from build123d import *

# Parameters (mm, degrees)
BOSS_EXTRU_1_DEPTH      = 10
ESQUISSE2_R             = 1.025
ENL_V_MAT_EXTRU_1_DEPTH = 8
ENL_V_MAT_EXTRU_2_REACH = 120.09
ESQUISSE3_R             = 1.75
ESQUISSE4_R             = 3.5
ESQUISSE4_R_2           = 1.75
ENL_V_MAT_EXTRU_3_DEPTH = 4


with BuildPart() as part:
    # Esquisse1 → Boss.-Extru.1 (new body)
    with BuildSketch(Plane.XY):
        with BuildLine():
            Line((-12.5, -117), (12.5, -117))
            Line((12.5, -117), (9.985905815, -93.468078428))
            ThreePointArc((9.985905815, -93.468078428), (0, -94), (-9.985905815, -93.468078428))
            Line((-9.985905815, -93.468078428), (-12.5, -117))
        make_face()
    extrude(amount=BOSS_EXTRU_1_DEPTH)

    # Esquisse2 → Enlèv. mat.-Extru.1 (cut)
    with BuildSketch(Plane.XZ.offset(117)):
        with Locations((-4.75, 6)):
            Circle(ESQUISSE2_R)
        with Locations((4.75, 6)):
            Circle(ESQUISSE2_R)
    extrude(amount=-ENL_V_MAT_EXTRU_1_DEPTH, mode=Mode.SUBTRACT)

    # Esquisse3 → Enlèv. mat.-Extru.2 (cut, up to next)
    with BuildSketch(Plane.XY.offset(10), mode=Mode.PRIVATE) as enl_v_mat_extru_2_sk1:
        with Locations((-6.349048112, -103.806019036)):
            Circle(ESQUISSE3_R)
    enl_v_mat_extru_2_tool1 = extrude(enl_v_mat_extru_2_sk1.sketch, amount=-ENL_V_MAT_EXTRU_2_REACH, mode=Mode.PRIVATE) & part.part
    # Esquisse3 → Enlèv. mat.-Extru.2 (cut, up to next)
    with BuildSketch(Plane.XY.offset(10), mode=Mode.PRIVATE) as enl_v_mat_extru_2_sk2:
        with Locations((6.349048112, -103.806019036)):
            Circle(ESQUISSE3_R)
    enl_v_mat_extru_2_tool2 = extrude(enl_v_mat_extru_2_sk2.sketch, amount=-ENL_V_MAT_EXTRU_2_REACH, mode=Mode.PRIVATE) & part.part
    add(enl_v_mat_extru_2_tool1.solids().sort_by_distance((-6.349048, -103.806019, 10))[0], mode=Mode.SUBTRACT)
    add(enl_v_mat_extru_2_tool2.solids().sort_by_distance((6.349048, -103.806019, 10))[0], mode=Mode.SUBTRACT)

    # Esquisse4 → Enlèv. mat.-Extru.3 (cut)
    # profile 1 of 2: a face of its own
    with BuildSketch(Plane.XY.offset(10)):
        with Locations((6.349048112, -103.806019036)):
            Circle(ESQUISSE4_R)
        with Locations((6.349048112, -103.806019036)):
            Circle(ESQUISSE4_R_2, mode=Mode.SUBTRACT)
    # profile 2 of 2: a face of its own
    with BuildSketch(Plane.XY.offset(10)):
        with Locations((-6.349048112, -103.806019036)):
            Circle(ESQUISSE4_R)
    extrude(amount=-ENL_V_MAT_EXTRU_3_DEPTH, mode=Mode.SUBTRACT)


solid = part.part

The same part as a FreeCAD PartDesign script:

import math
import FreeCAD as App
import Part
import Sketcher

doc = App.newDocument("Part")
params = doc.addObject("Spreadsheet::Sheet", "Params")
for row, (alias, value) in enumerate([
    ("sketch1_radius", "94 mm"),
    ("sketch1_width", "25 mm"),
    ("pad1_length", "10 mm"),
    ("sketch2_diameter", "2.05 mm"),
    ("pocket1_length", "8 mm"),
    ("sketch3_diameter", "3.5 mm"),
    ("sketch4_diameter", "3.5 mm"),
    ("sketch5_diameter", "7 mm"),
    ("sketch5_diameter2", "3.5 mm"),
    ("pocket4_length", "4 mm"),
], start=1):
    params.set(f"A{row}", alias)
    params.set(f"B{row}", "=" + value)
    params.setAlias(f"B{row}", alias)

body = doc.addObject("PartDesign::Body", "Body")

sketch1 = body.newObject("Sketcher::SketchObject", "Sketch")
sketch1.AttachmentSupport = (doc.getObject("XY_Plane"), [""])
sketch1.MapMode = "FlatFace"
sketch1.addGeometry([
    Part.LineSegment(App.Vector(-12, -117, 0), App.Vector(12, -117, 0)),
    Part.LineSegment(App.Vector(12, -117, 0), App.Vector(10, -93, 0)),
    Part.ArcOfCircle(Part.Circle(App.Vector(0, 0, 0), App.Vector(0, 0, 1), 94), math.radians(-96.1), math.radians(-83.9)),
    Part.LineSegment(App.Vector(-10, -93, 0), App.Vector(-12, -117, 0)),
], False)
sketch1.addConstraint([
    Sketcher.Constraint("Coincident", 0, 2, 1, 1),
    Sketcher.Constraint("Coincident", 1, 2, 2, 2),
    Sketcher.Constraint("Coincident", 2, 1, 3, 1),
    Sketcher.Constraint("Coincident", 3, 2, 0, 1),
    Sketcher.Constraint("Horizontal", 0),
    Sketcher.Constraint("Coincident", 2, 3, -1, 1),
    Sketcher.Constraint("Horizontal", 1, 2, 2, 1),
    Sketcher.Constraint("Equal", 1, 3),
    Sketcher.Constraint("Radius", 2, 94.0),
    Sketcher.Constraint("DistanceX", 0, 1, 0, 2, 25.0),
    Sketcher.Constraint("DistanceY", 0, 2, -1, 1, 117.0),
    Sketcher.Constraint("DistanceY", 1, 2, -1, 1, 93.468078),
])
sketch1.setExpression("Constraints[8]", "Params.sketch1_radius")
sketch1.setExpression("Constraints[9]", "Params.sketch1_width")
pad1 = body.newObject("PartDesign::Pad", "Pad")
pad1.Profile = sketch1
pad1.setExpression("Length", "Params.pad1_length")

sketch2 = body.newObject("Sketcher::SketchObject", "Sketch001")
sketch2.AttachmentSupport = (doc.getObject("XZ_Plane"), [""])
sketch2.MapMode = "FlatFace"
sketch2.AttachmentOffset = App.Placement(App.Vector(0, 0, 117), App.Rotation())
sketch2.addGeometry([
    Part.Circle(App.Vector(-4.8, 6, 0), App.Vector(0, 0, 1), 1),
    Part.Circle(App.Vector(4.8, 6, 0), App.Vector(0, 0, 1), 1),
], False)
sketch2.addConstraint([
    Sketcher.Constraint("Equal", 0, 1),
    Sketcher.Constraint("Symmetric", 0, 3, 1, 3, -2),
    Sketcher.Constraint("Diameter", 0, 2.05),
    Sketcher.Constraint("DistanceY", -1, 1, 0, 3, 6.0),
    Sketcher.Constraint("DistanceX", 0, 3, 1, 3, 9.5),
])
sketch2.setExpression("Constraints[2]", "Params.sketch2_diameter")
pocket1 = body.newObject("PartDesign::Pocket", "Pocket")
pocket1.Profile = sketch2
pocket1.setExpression("Length", "Params.pocket1_length")

sketch3 = body.newObject("Sketcher::SketchObject", "Sketch002")
sketch3.AttachmentSupport = (doc.getObject("XY_Plane"), [""])
sketch3.MapMode = "FlatFace"
sketch3.AttachmentOffset = App.Placement(App.Vector(0, 0, 10), App.Rotation())
sketch3.addGeometry(Part.Circle(App.Vector(-6.3, -103.8, 0), App.Vector(0, 0, 1), 1.8), False)
sketch3.addConstraint([
    Sketcher.Constraint("Diameter", 0, 3.5),
    Sketcher.Constraint("DistanceX", 0, 3, -1, 1, 6.349048),
    Sketcher.Constraint("DistanceY", 0, 3, -1, 1, 103.806019),
])
sketch3.setExpression("Constraints[0]", "Params.sketch3_diameter")
pocket2 = body.newObject("PartDesign::Pocket", "Pocket001")
pocket2.Profile = sketch3
pocket2.Type = "UpToFirst"

sketch4 = body.newObject("Sketcher::SketchObject", "Sketch003")
sketch4.AttachmentSupport = (doc.getObject("XY_Plane"), [""])
sketch4.MapMode = "FlatFace"
sketch4.AttachmentOffset = App.Placement(App.Vector(0, 0, 10), App.Rotation())
sketch4.addGeometry(Part.Circle(App.Vector(6.3, -103.8, 0), App.Vector(0, 0, 1), 1.8), False)
sketch4.addConstraint([
    Sketcher.Constraint("Diameter", 0, 3.5),
    Sketcher.Constraint("DistanceX", -1, 1, 0, 3, 6.349048),
    Sketcher.Constraint("DistanceY", 0, 3, -1, 1, 103.806019),
])
sketch4.setExpression("Constraints[0]", "Params.sketch4_diameter")
pocket3 = body.newObject("PartDesign::Pocket", "Pocket002")
pocket3.Profile = sketch4
pocket3.Type = "UpToFirst"

sketch5 = body.newObject("Sketcher::SketchObject", "Sketch004")
sketch5.AttachmentSupport = (doc.getObject("XY_Plane"), [""])
sketch5.MapMode = "FlatFace"
sketch5.AttachmentOffset = App.Placement(App.Vector(0, 0, 10), App.Rotation())
sketch5.addGeometry([
    Part.Circle(App.Vector(6.3, -103.8, 0), App.Vector(0, 0, 1), 3.5),
    Part.Circle(App.Vector(6.3, -103.8, 0), App.Vector(0, 0, 1), 1.8),
    Part.Circle(App.Vector(-6.3, -103.8, 0), App.Vector(0, 0, 1), 3.5),
], False)
sketch5.addConstraint([
    Sketcher.Constraint("Coincident", 1, 3, 0, 3),
    Sketcher.Constraint("Equal", 0, 2),
    Sketcher.Constraint("Symmetric", 0, 3, 2, 3, -2),
    Sketcher.Constraint("Diameter", 0, 7.0),
    Sketcher.Constraint("Diameter", 1, 3.5),
    Sketcher.Constraint("DistanceX", -1, 1, 0, 3, 6.349048),
    Sketcher.Constraint("DistanceY", 0, 3, -1, 1, 103.806019),
])
sketch5.setExpression("Constraints[3]", "Params.sketch5_diameter")
sketch5.setExpression("Constraints[4]", "Params.sketch5_diameter2")
pocket4 = body.newObject("PartDesign::Pocket", "Pocket003")
pocket4.Profile = sketch5
pocket4.setExpression("Length", "Params.pocket4_length")

doc.recompute()
